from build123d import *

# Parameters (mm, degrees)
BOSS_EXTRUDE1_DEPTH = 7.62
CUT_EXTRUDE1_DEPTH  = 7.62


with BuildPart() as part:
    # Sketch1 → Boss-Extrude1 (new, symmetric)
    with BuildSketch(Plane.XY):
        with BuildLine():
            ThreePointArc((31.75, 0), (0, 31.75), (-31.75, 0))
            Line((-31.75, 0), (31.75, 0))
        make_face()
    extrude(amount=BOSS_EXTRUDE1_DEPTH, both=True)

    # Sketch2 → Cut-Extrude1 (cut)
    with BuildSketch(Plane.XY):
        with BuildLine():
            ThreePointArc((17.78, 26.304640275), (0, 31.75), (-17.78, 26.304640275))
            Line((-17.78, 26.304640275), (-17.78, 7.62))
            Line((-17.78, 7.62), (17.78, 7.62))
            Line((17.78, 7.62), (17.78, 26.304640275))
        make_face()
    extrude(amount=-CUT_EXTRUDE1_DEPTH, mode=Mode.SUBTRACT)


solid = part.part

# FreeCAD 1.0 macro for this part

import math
import FreeCAD as App
import Part
import Sketcher
Q = App.Units.Quantity

doc = App.newDocument("Part")
body = doc.addObject("PartDesign::Body", "Body")

sketch1 = body.newObject("Sketcher::SketchObject", "Sketch")
sketch1.AttachmentSupport = (doc.getObject("XY_Plane"), [""])
sketch1.MapMode = "FlatFace"
sketch1.addGeometry([
    Part.ArcOfCircle(Part.Circle(App.Vector(0, 0, 0), App.Vector(0, 0, 1), 32), math.radians(0), math.radians(180)),
    Part.LineSegment(App.Vector(-32, 0, 0), App.Vector(32, 0, 0)),
], False)
sketch1.addConstraint([
    Sketcher.Constraint("Coincident", 0, 1, 1, 2),
    Sketcher.Constraint("Coincident", 1, 1, 0, 2),
    Sketcher.Constraint("Horizontal", 1),
    Sketcher.Constraint("Coincident", 0, 3, -1, 1),
    Sketcher.Constraint("PointOnObject", 0, 1, -1),
    Sketcher.Constraint("Radius", 0, Q("1.25 in")),
])
pad1 = body.newObject("PartDesign::Pad", "Pad")
pad1.Profile = sketch1
pad1.Length = Q("0.6 in")
pad1.Midplane = True

sketch2 = body.newObject("Sketcher::SketchObject", "Sketch001")
sketch2.AttachmentSupport = (doc.getObject("XY_Plane"), [""])
sketch2.MapMode = "FlatFace"
sketch2.addGeometry([
    Part.ArcOfCircle(Part.Circle(App.Vector(0, 0, 0), App.Vector(0, 0, 1), 32), math.radians(56), math.radians(124)),
    Part.LineSegment(App.Vector(-18, 26, 0), App.Vector(-18, 8, 0)),
    Part.LineSegment(App.Vector(-18, 8, 0), App.Vector(18, 8, 0)),
    Part.LineSegment(App.Vector(18, 8, 0), App.Vector(18, 26, 0)),
], False)
sketch2.addConstraint([
    Sketcher.Constraint("Coincident", 0, 2, 1, 1),
    Sketcher.Constraint("Coincident", 1, 2, 2, 1),
    Sketcher.Constraint("Coincident", 2, 2, 3, 1),
    Sketcher.Constraint("Coincident", 3, 2, 0, 1),
    Sketcher.Constraint("Vertical", 1),
    Sketcher.Constraint("Horizontal", 2),
    Sketcher.Constraint("Vertical", 3),
    Sketcher.Constraint("Coincident", 0, 3, -1, 1),
    Sketcher.Constraint("Horizontal", 0, 2, 3, 2),
    Sketcher.Constraint("Radius", 0, Q("1.25 in")),
    Sketcher.Constraint("DistanceX", 2, 1, 2, 2, Q("1.4 in")),
    Sketcher.Constraint("DistanceY", -1, 1, 1, 2, Q("0.3 in")),
])
pocket1 = body.newObject("PartDesign::Pocket", "Pocket")
pocket1.Profile = sketch2
pocket1.Length = Q("0.3 in")

doc.recompute()
